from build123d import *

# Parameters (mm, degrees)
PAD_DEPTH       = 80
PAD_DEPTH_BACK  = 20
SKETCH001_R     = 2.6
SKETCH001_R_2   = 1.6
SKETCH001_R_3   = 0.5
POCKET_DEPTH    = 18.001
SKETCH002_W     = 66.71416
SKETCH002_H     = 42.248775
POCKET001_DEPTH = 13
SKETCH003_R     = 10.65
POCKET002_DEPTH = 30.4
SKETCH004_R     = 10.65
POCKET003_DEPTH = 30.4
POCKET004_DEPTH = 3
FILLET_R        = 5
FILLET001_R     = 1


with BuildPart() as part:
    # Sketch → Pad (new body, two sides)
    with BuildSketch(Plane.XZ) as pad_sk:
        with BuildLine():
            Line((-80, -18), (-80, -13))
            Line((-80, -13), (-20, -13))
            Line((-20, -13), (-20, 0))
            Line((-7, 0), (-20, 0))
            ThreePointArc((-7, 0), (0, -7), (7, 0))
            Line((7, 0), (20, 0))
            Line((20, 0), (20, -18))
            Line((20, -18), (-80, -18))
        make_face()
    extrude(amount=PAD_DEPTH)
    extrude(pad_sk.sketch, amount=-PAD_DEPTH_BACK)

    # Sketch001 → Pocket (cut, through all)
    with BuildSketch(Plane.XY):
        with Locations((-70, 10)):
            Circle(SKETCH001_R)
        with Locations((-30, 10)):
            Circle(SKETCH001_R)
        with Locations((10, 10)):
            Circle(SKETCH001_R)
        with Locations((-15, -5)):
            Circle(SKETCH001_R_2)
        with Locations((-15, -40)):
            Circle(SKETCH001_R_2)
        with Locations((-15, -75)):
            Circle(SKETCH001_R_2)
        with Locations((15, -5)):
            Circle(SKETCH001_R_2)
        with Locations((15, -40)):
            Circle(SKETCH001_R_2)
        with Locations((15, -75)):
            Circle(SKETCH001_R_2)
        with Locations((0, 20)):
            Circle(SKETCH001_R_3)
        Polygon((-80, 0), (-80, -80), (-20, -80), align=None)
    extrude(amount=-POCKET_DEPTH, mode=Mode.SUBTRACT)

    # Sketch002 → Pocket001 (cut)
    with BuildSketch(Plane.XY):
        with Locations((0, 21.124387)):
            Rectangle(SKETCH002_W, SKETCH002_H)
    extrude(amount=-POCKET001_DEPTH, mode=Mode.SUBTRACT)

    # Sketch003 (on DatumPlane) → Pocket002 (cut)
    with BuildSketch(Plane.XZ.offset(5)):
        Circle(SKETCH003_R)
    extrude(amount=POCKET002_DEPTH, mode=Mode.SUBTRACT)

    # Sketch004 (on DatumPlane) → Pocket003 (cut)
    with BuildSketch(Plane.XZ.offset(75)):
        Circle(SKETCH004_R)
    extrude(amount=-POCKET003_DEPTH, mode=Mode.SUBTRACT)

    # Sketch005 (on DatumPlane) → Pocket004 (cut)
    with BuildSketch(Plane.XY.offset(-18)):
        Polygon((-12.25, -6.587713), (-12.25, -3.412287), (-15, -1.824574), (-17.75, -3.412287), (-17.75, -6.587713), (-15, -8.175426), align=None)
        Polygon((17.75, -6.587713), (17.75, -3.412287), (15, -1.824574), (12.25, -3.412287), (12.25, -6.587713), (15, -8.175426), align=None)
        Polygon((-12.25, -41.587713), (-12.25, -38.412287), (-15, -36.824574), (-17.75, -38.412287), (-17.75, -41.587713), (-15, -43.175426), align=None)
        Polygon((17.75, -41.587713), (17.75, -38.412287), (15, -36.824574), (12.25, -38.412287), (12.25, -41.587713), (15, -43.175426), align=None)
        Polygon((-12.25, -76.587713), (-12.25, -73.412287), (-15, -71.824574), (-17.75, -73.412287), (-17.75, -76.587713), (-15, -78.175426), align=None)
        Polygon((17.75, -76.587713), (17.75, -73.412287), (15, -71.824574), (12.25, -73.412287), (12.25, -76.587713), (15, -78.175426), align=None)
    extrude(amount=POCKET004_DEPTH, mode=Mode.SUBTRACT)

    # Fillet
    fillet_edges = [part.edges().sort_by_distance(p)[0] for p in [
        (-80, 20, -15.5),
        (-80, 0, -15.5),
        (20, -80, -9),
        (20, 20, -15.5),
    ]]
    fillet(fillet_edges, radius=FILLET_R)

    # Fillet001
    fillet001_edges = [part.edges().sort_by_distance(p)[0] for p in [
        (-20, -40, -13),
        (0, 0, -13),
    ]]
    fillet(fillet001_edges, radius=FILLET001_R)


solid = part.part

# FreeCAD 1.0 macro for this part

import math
import FreeCAD as App
import Part
import Sketcher
from FreeCAD import Vector
Q = App.Units.Quantity


def edges_at(feature, points):
    """Names of the edges that pass closest to the given points."""
    edges = feature.Shape.Edges
    near = lambda p: min(range(len(edges)), key=lambda i: edges[i].distToShape(Part.Vertex(*p))[0])
    return sorted({f"Edge{near(p) + 1}" for p in points})

doc = App.newDocument("Part")
params = doc.addObject("Spreadsheet::Sheet", "Params")
for row, (alias, value) in enumerate([
    ("sketch1_radius", "7 mm"),
    ("sketch1_width", "100 mm"),
    ("sketch1_width2", "13 mm"),
    ("sketch1_height", "5 mm"),
    ("pad1_length", "80 mm"),
    ("pad1_length2", "20 mm"),
    ("sketch2_diameter", "1 mm"),
    ("sketch2_diameter2", "5.2 mm"),
    ("sketch2_diameter3", "3.2 mm"),
    ("sketch2_width", "60 mm"),
    ("sketch2_height", "80 mm"),
    ("pocket2_length", "13 mm"),
    ("sketch4_diameter", "21.3 mm"),
    ("pocket3_length", "30.4 mm"),
    ("sketch5_diameter", "21.3 mm"),
    ("pocket4_length", "30.4 mm"),
    ("pocket5_length", "3 mm"),
    ("fillet_radius", "5 mm"),
    ("fillet2_radius", "1 mm"),
], start=1):
    params.set(f"A{row}", alias)
    params.set(f"B{row}", "=" + value)
    params.setAlias(f"B{row}", alias)

body = doc.addObject("PartDesign::Body", "Body")

# Sketch on XZ plane
sketch1 = body.newObject("Sketcher::SketchObject", "Sketch")
sketch1.AttachmentSupport = (doc.getObject("XZ_Plane"), [""])
sketch1.MapMode = "FlatFace"
sketch1.addGeometry([
    Part.LineSegment(Vector(-80, -13, 0), Vector(-80, -18, 0)),  # 0
    Part.LineSegment(Vector(-80, -18, 0), Vector(20, -18, 0)),  # 1
    Part.LineSegment(Vector(20, -18, 0), Vector(20, 0, 0)),  # 2
    Part.LineSegment(Vector(20, 0, 0), Vector(7, 0, 0)),  # 3
    Part.ArcOfCircle(Part.Circle(Vector(0, 0, 0), Vector(0, 0, 1), 7), math.radians(180), math.radians(360)),  # 4
    Part.LineSegment(Vector(-7, 0, 0), Vector(-20, 0, 0)),  # 5
    Part.LineSegment(Vector(-20, 0, 0), Vector(-20, -13, 0)),  # 6
    Part.LineSegment(Vector(-20, -13, 0), Vector(-80, -13, 0)),  # 7
], False)
sketch1.addConstraint([
    Sketcher.Constraint("Coincident", 0, 2, 1, 1),
    Sketcher.Constraint("Coincident", 1, 2, 2, 1),
    Sketcher.Constraint("Coincident", 2, 2, 3, 1),
    Sketcher.Constraint("Coincident", 3, 2, 4, 2),
    Sketcher.Constraint("Coincident", 4, 1, 5, 1),
    Sketcher.Constraint("Coincident", 5, 2, 6, 1),
    Sketcher.Constraint("Coincident", 6, 2, 7, 1),
    Sketcher.Constraint("Coincident", 7, 2, 0, 1),
    Sketcher.Constraint("Vertical", 0),
    Sketcher.Constraint("Horizontal", 1),
    Sketcher.Constraint("Vertical", 2),
    Sketcher.Constraint("Horizontal", 3),
    Sketcher.Constraint("Horizontal", 5),
    Sketcher.Constraint("Vertical", 6),
    Sketcher.Constraint("Horizontal", 7),
    Sketcher.Constraint("Coincident", 4, 3, -1, 1),
    Sketcher.Constraint("Symmetric", 2, 2, 5, 2, -1, 1),
    Sketcher.Constraint("PointOnObject", 2, 2, -1),
    Sketcher.Constraint("Equal", 5, 6),
    Sketcher.Constraint("Radius", 4, Q("7 mm")),
    Sketcher.Constraint("DistanceX", 1, 1, 1, 2, Q("100 mm")),
    Sketcher.Constraint("DistanceX", 3, 2, 3, 1, Q("13 mm")),
    Sketcher.Constraint("DistanceY", 0, 2, 0, 1, Q("5 mm")),
])
sketch1.setExpression("Constraints[19]", "Params.sketch1_radius")
sketch1.setExpression("Constraints[20]", "Params.sketch1_width")
sketch1.setExpression("Constraints[21]", "Params.sketch1_width2")
sketch1.setExpression("Constraints[22]", "Params.sketch1_height")
pad1 = body.newObject("PartDesign::Pad", "Pad")
pad1.Profile = sketch1
pad1.Type = "TwoLengths"
pad1.setExpression("Length", "Params.pad1_length")
pad1.setExpression("Length2", "Params.pad1_length2")

# Sketch on XY plane
sketch2 = body.newObject("Sketcher::SketchObject", "Sketch001")
sketch2.AttachmentSupport = (doc.getObject("XY_Plane"), [""])
sketch2.MapMode = "FlatFace"
sketch2.addGeometry([
    Part.Circle(Vector(-70, 10, 0), Vector(0, 0, 1), 2.6),  # 0
    Part.Circle(Vector(-30, 10, 0), Vector(0, 0, 1), 2.6),  # 1
    Part.Circle(Vector(10, 10, 0), Vector(0, 0, 1), 2.6),  # 2
    Part.Circle(Vector(-15, -5, 0), Vector(0, 0, 1), 1.6),  # 3
    Part.Circle(Vector(-15, -40, 0), Vector(0, 0, 1), 1.6),  # 4
    Part.Circle(Vector(-15, -75, 0), Vector(0, 0, 1), 1.6),  # 5
    Part.Circle(Vector(15, -5, 0), Vector(0, 0, 1), 1.6),  # 6
    Part.Circle(Vector(15, -40, 0), Vector(0, 0, 1), 1.6),  # 7
    Part.Circle(Vector(15, -75, 0), Vector(0, 0, 1), 1.6),  # 8
    Part.Circle(Vector(0, 20, 0), Vector(0, 0, 1), 0.5),  # 9
    Part.LineSegment(Vector(-80, 0, 0), Vector(-80, -80, 0)),  # 10
    Part.LineSegment(Vector(-80, -80, 0), Vector(-20, -80, 0)),  # 11
    Part.LineSegment(Vector(-20, -80, 0), Vector(-80, 0, 0)),  # 12
], False)
sketch2.addConstraint([
    Sketcher.Constraint("Coincident", 10, 2, 11, 1),
    Sketcher.Constraint("Coincident", 11, 2, 12, 1),
    Sketcher.Constraint("Coincident", 12, 2, 10, 1),
    Sketcher.Constraint("Vertical", 10),
    Sketcher.Constraint("Horizontal", 11),
    Sketcher.Constraint("Equal", 0, 1),
    Sketcher.Constraint("Equal", 1, 2),
    Sketcher.Constraint("Equal", 3, 4),
    Sketcher.Constraint("Equal", 4, 5),
    Sketcher.Constraint("Equal", 5, 6),
    Sketcher.Constraint("Equal", 6, 7),
    Sketcher.Constraint("Equal", 7, 8),
    Sketcher.Constraint("Symmetric", 3, 3, 6, 3, -2),
    Sketcher.Constraint("Symmetric", 4, 3, 7, 3, -2),
    Sketcher.Constraint("Symmetric", 5, 3, 8, 3, -2),
    Sketcher.Constraint("PointOnObject", 9, 3, -2),
    Sketcher.Constraint("PointOnObject", 12, 2, -1),
    Sketcher.Constraint("Horizontal", 0, 3, 1, 3),
    Sketcher.Constraint("Horizontal", 1, 3, 2, 3),
    Sketcher.Constraint("Vertical", 3, 3, 4, 3),
    Sketcher.Constraint("Vertical", 4, 3, 5, 3),
    Sketcher.Constraint("Diameter", 9, Q("1 mm")),
    Sketcher.Constraint("Diameter", 0, Q("5.2 mm")),
    Sketcher.Constraint("Diameter", 3, Q("3.2 mm")),
    Sketcher.Constraint("DistanceX", 11, 1, 11, 2, Q("60 mm")),
    Sketcher.Constraint("DistanceY", 10, 2, 10, 1, Q("80 mm")),
    Sketcher.Constraint("DistanceX", 0, 3, -1, 1, Q("70 mm")),
    Sketcher.Constraint("DistanceY", -1, 1, 0, 3, Q("10 mm")),
    Sketcher.Constraint("DistanceX", 1, 3, -1, 1, Q("30 mm")),
    Sketcher.Constraint("DistanceX", -1, 1, 2, 3, Q("10 mm")),
    Sketcher.Constraint("DistanceX", 3, 3, -1, 1, Q("15 mm")),
    Sketcher.Constraint("DistanceY", 3, 3, -1, 1, Q("5 mm")),
    Sketcher.Constraint("DistanceY", 4, 3, -1, 1, Q("40 mm")),
    Sketcher.Constraint("DistanceY", 5, 3, -1, 1, Q("75 mm")),
    Sketcher.Constraint("DistanceY", -1, 1, 9, 3, Q("20 mm")),
    Sketcher.Constraint("DistanceX", 10, 2, -1, 1, Q("80 mm")),
])
sketch2.setExpression("Constraints[21]", "Params.sketch2_diameter")
sketch2.setExpression("Constraints[22]", "Params.sketch2_diameter2")
sketch2.setExpression("Constraints[23]", "Params.sketch2_diameter3")
sketch2.setExpression("Constraints[24]", "Params.sketch2_width")
sketch2.setExpression("Constraints[25]", "Params.sketch2_height")
pocket1 = body.newObject("PartDesign::Pocket", "Pocket")
pocket1.Profile = sketch2
pocket1.Type = "ThroughAll"

# Sketch on XY plane
sketch3 = body.newObject("Sketcher::SketchObject", "Sketch002")
sketch3.AttachmentSupport = (doc.getObject("XY_Plane"), [""])
sketch3.MapMode = "FlatFace"
sketch3.addGeometry([
    Part.LineSegment(Vector(-33, 42, 0), Vector(-33, 0, 0)),
    Part.LineSegment(Vector(-33, 0, 0), Vector(33, 0, 0)),
    Part.LineSegment(Vector(33, 0, 0), Vector(33, 42, 0)),
    Part.LineSegment(Vector(33, 42, 0), Vector(-33, 42, 0)),
], False)
sketch3.addConstraint([
    Sketcher.Constraint("Coincident", 0, 2, 1, 1),
    Sketcher.Constraint("Coincident", 1, 2, 2, 1),
    Sketcher.Constraint("Coincident", 2, 2, 3, 1),
    Sketcher.Constraint("Coincident", 3, 2, 0, 1),
    Sketcher.Constraint("Vertical", 0),
    Sketcher.Constraint("Horizontal", 1),
    Sketcher.Constraint("Vertical", 2),
    Sketcher.Constraint("Horizontal", 3),
    Sketcher.Constraint("Symmetric", 0, 2, 1, 2, -1, 1),
    Sketcher.Constraint("DistanceX", 1, 1, 1, 2, Q("66.71416 mm")),
    Sketcher.Constraint("DistanceY", 0, 2, 0, 1, Q("42.248775 mm")),
])
pocket2 = body.newObject("PartDesign::Pocket", "Pocket001")
pocket2.Profile = sketch3
pocket2.setExpression("Length", "Params.pocket2_length")

# Sketch on XZ plane
sketch4 = body.newObject("Sketcher::SketchObject", "Sketch003")
sketch4.AttachmentSupport = (doc.getObject("XZ_Plane"), [""])
sketch4.MapMode = "FlatFace"
sketch4.AttachmentOffset = App.Placement(Vector(0, 0, 5), App.Rotation())
sketch4.addGeometry(Part.Circle(Vector(0, 0, 0), Vector(0, 0, 1), 11), False)
sketch4.addConstraint([
    Sketcher.Constraint("Coincident", 0, 3, -1, 1),
    Sketcher.Constraint("Diameter", 0, Q("21.3 mm")),
])
sketch4.setExpression("Constraints[1]", "Params.sketch4_diameter")
pocket3 = body.newObject("PartDesign::Pocket", "Pocket002")
pocket3.Profile = sketch4
pocket3.setExpression("Length", "Params.pocket3_length")
pocket3.Reversed = True

# Sketch on XZ plane
sketch5 = body.newObject("Sketcher::SketchObject", "Sketch004")
sketch5.AttachmentSupport = (doc.getObject("XZ_Plane"), [""])
sketch5.MapMode = "FlatFace"
sketch5.AttachmentOffset = App.Placement(Vector(0, 0, 75), App.Rotation())
sketch5.addGeometry(Part.Circle(Vector(0, 0, 0), Vector(0, 0, 1), 11), False)
sketch5.addConstraint([
    Sketcher.Constraint("Coincident", 0, 3, -1, 1),
    Sketcher.Constraint("Diameter", 0, Q("21.3 mm")),
])
sketch5.setExpression("Constraints[1]", "Params.sketch5_diameter")
pocket4 = body.newObject("PartDesign::Pocket", "Pocket003")
pocket4.Profile = sketch5
pocket4.setExpression("Length", "Params.pocket4_length")

# Sketch on XY plane
sketch6 = body.newObject("Sketcher::SketchObject", "Sketch005")
sketch6.AttachmentSupport = (doc.getObject("XY_Plane"), [""])
sketch6.MapMode = "FlatFace"
sketch6.AttachmentOffset = App.Placement(Vector(0, 0, -18), App.Rotation())
sketch6.addGeometry([
    Part.LineSegment(Vector(-12.2, -6.6, 0), Vector(-12.2, -3.4, 0)),  # 0
    Part.LineSegment(Vector(-12.2, -3.4, 0), Vector(-15, -1.8, 0)),  # 1
    Part.LineSegment(Vector(-15, -1.8, 0), Vector(-17.8, -3.4, 0)),  # 2
    Part.LineSegment(Vector(-17.8, -3.4, 0), Vector(-17.8, -6.6, 0)),  # 3
    Part.LineSegment(Vector(-17.8, -6.6, 0), Vector(-15, -8.2, 0)),  # 4
    Part.LineSegment(Vector(-15, -8.2, 0), Vector(-12.2, -6.6, 0)),  # 5
    Part.LineSegment(Vector(17.8, -6.6, 0), Vector(17.8, -3.4, 0)),  # 6
    Part.LineSegment(Vector(17.8, -3.4, 0), Vector(15, -1.8, 0)),  # 7
    Part.LineSegment(Vector(15, -1.8, 0), Vector(12.2, -3.4, 0)),  # 8
    Part.LineSegment(Vector(12.2, -3.4, 0), Vector(12.2, -6.6, 0)),  # 9
    Part.LineSegment(Vector(12.2, -6.6, 0), Vector(15, -8.2, 0)),  # 10
    Part.LineSegment(Vector(15, -8.2, 0), Vector(17.8, -6.6, 0)),  # 11
    Part.LineSegment(Vector(-12.2, -41.6, 0), Vector(-12.2, -38.4, 0)),  # 12
    Part.LineSegment(Vector(-12.2, -38.4, 0), Vector(-15, -36.8, 0)),  # 13
    Part.LineSegment(Vector(-15, -36.8, 0), Vector(-17.8, -38.4, 0)),  # 14
    Part.LineSegment(Vector(-17.8, -38.4, 0), Vector(-17.8, -41.6, 0)),  # 15
    Part.LineSegment(Vector(-17.8, -41.6, 0), Vector(-15, -43.2, 0)),  # 16
    Part.LineSegment(Vector(-15, -43.2, 0), Vector(-12.2, -41.6, 0)),  # 17
    Part.LineSegment(Vector(17.8, -41.6, 0), Vector(17.8, -38.4, 0)),  # 18
    Part.LineSegment(Vector(17.8, -38.4, 0), Vector(15, -36.8, 0)),  # 19
    Part.LineSegment(Vector(15, -36.8, 0), Vector(12.2, -38.4, 0)),  # 20
    Part.LineSegment(Vector(12.2, -38.4, 0), Vector(12.2, -41.6, 0)),  # 21
    Part.LineSegment(Vector(12.2, -41.6, 0), Vector(15, -43.2, 0)),  # 22
    Part.LineSegment(Vector(15, -43.2, 0), Vector(17.8, -41.6, 0)),  # 23
    Part.LineSegment(Vector(-12.2, -76.6, 0), Vector(-12.2, -73.4, 0)),  # 24
    Part.LineSegment(Vector(-12.2, -73.4, 0), Vector(-15, -71.8, 0)),  # 25
    Part.LineSegment(Vector(-15, -71.8, 0), Vector(-17.8, -73.4, 0)),  # 26
    Part.LineSegment(Vector(-17.8, -73.4, 0), Vector(-17.8, -76.6, 0)),  # 27
    Part.LineSegment(Vector(-17.8, -76.6, 0), Vector(-15, -78.2, 0)),  # 28
    Part.LineSegment(Vector(-15, -78.2, 0), Vector(-12.2, -76.6, 0)),  # 29
    Part.LineSegment(Vector(17.8, -76.6, 0), Vector(17.8, -73.4, 0)),  # 30
    Part.LineSegment(Vector(17.8, -73.4, 0), Vector(15, -71.8, 0)),  # 31
    Part.LineSegment(Vector(15, -71.8, 0), Vector(12.2, -73.4, 0)),  # 32
    Part.LineSegment(Vector(12.2, -73.4, 0), Vector(12.2, -76.6, 0)),  # 33
    Part.LineSegment(Vector(12.2, -76.6, 0), Vector(15, -78.2, 0)),  # 34
    Part.LineSegment(Vector(15, -78.2, 0), Vector(17.8, -76.6, 0)),  # 35
], False)
sketch6.addConstraint([
    Sketcher.Constraint("Coincident", 0, 2, 1, 1),
    Sketcher.Constraint("Coincident", 1, 2, 2, 1),
    Sketcher.Constraint("Coincident", 2, 2, 3, 1),
    Sketcher.Constraint("Coincident", 3, 2, 4, 1),
    Sketcher.Constraint("Coincident", 4, 2, 5, 1),
    Sketcher.Constraint("Coincident", 5, 2, 0, 1),
    Sketcher.Constraint("Coincident", 6, 2, 7, 1),
    Sketcher.Constraint("Coincident", 7, 2, 8, 1),
    Sketcher.Constraint("Coincident", 8, 2, 9, 1),
    Sketcher.Constraint("Coincident", 9, 2, 10, 1),
    Sketcher.Constraint("Coincident", 10, 2, 11, 1),
    Sketcher.Constraint("Coincident", 11, 2, 6, 1),
    Sketcher.Constraint("Coincident", 12, 2, 13, 1),
    Sketcher.Constraint("Coincident", 13, 2, 14, 1),
    Sketcher.Constraint("Coincident", 14, 2, 15, 1),
    Sketcher.Constraint("Coincident", 15, 2, 16, 1),
    Sketcher.Constraint("Coincident", 16, 2, 17, 1),
    Sketcher.Constraint("Coincident", 17, 2, 12, 1),
    Sketcher.Constraint("Coincident", 18, 2, 19, 1),
    Sketcher.Constraint("Coincident", 19, 2, 20, 1),
    Sketcher.Constraint("Coincident", 20, 2, 21, 1),
    Sketcher.Constraint("Coincident", 21, 2, 22, 1),
    Sketcher.Constraint("Coincident", 22, 2, 23, 1),
    Sketcher.Constraint("Coincident", 23, 2, 18, 1),
    Sketcher.Constraint("Coincident", 24, 2, 25, 1),
    Sketcher.Constraint("Coincident", 25, 2, 26, 1),
    Sketcher.Constraint("Coincident", 26, 2, 27, 1),
    Sketcher.Constraint("Coincident", 27, 2, 28, 1),
    Sketcher.Constraint("Coincident", 28, 2, 29, 1),
    Sketcher.Constraint("Coincident", 29, 2, 24, 1),
    Sketcher.Constraint("Coincident", 30, 2, 31, 1),
    Sketcher.Constraint("Coincident", 31, 2, 32, 1),
    Sketcher.Constraint("Coincident", 32, 2, 33, 1),
    Sketcher.Constraint("Coincident", 33, 2, 34, 1),
    Sketcher.Constraint("Coincident", 34, 2, 35, 1),
    Sketcher.Constraint("Coincident", 35, 2, 30, 1),
    Sketcher.Constraint("Vertical", 0),
    Sketcher.Constraint("Vertical", 3),
    Sketcher.Constraint("Vertical", 6),
    Sketcher.Constraint("Vertical", 9),
    Sketcher.Constraint("Vertical", 12),
    Sketcher.Constraint("Vertical", 15),
    Sketcher.Constraint("Vertical", 18),
    Sketcher.Constraint("Vertical", 21),
    Sketcher.Constraint("Vertical", 24),
    Sketcher.Constraint("Vertical", 27),
    Sketcher.Constraint("Vertical", 30),
    Sketcher.Constraint("Vertical", 33),
    Sketcher.Constraint("Symmetric", 2, 2, 6, 2, -2),
    Sketcher.Constraint("Symmetric", 1, 2, 7, 2, -2),
    Sketcher.Constraint("Symmetric", 0, 2, 8, 2, -2),
    Sketcher.Constraint("Symmetric", 4, 2, 10, 2, -2),
    Sketcher.Constraint("Symmetric", 14, 2, 18, 2, -2),
    Sketcher.Constraint("Symmetric", 13, 2, 19, 2, -2),
    Sketcher.Constraint("Symmetric", 12, 2, 20, 2, -2),
    Sketcher.Constraint("Symmetric", 16, 2, 22, 2, -2),
    Sketcher.Constraint("Symmetric", 26, 2, 30, 2, -2),
    Sketcher.Constraint("Symmetric", 25, 2, 31, 2, -2),
    Sketcher.Constraint("Symmetric", 24, 2, 32, 2, -2),
    Sketcher.Constraint("Symmetric", 28, 2, 34, 2, -2),
    Sketcher.Constraint("Parallel", 1, 4),
    Sketcher.Constraint("Parallel", 2, 5),
    Sketcher.Constraint("Parallel", 4, 7),
    Sketcher.Constraint("Parallel", 7, 10),
    Sketcher.Constraint("Parallel", 8, 11),
    Sketcher.Constraint("Parallel", 10, 13),
    Sketcher.Constraint("Parallel", 11, 14),
    Sketcher.Constraint("Parallel", 13, 16),
    Sketcher.Constraint("Parallel", 14, 17),
    Sketcher.Constraint("Parallel", 19, 22),
    Sketcher.Constraint("Parallel", 20, 23),
    Sketcher.Constraint("Parallel", 22, 25),
    Sketcher.Constraint("Parallel", 23, 26),
    Sketcher.Constraint("Parallel", 25, 28),
    Sketcher.Constraint("Parallel", 26, 29),
    Sketcher.Constraint("Parallel", 31, 34),
    Sketcher.Constraint("Parallel", 32, 35),
    Sketcher.Constraint("Horizontal", 0, 2, 2, 2),
    Sketcher.Constraint("Horizontal", 3, 2, 5, 2),
    Sketcher.Constraint("Horizontal", 12, 2, 14, 2),
    Sketcher.Constraint("Horizontal", 15, 2, 17, 2),
    Sketcher.Constraint("Horizontal", 24, 2, 26, 2),
    Sketcher.Constraint("Horizontal", 27, 2, 29, 2),
    Sketcher.Constraint("Vertical", 5, 2, 12, 2),
    Sketcher.Constraint("Vertical", 4, 2, 13, 2),
    Sketcher.Constraint("Vertical", 17, 2, 24, 2),
    Sketcher.Constraint("Vertical", 16, 2, 25, 2),
    Sketcher.Constraint("Equal", 9, 12),
    Sketcher.Constraint("Equal", 21, 24),
    Sketcher.Constraint("Angle", 1, Q("150.000004 deg")),
    Sketcher.Constraint("DistanceX", 1, 2, -1, 1, Q("15 mm")),
    Sketcher.Constraint("DistanceY", 12, 2, 0, 2, Q("35 mm")),
    Sketcher.Constraint("DistanceY", 24, 2, 12, 2, Q("35 mm")),
    Sketcher.Constraint("DistanceX", 2, 2, 0, 2, Q("5.5 mm")),
    Sketcher.Constraint("DistanceY", 0, 1, 0, 2, Q("3.175426 mm")),
    Sketcher.Constraint("DistanceY", 0, 2, -1, 1, Q("3.412287 mm")),
])
pocket5 = body.newObject("PartDesign::Pocket", "Pocket004")
pocket5.Profile = sketch6
pocket5.setExpression("Length", "Params.pocket5_length")
pocket5.Reversed = True
doc.recompute()

fillet = body.newObject("PartDesign::Fillet", "Fillet")
fillet.Base = (pocket5, edges_at(pocket5, [
    (-80, 20, -15.5),
    (-80, 0, -15.5),
    (20, -80, -9),
    (20, 20, -15.5),
]))
fillet.setExpression("Radius", "Params.fillet_radius")
doc.recompute()

fillet2 = body.newObject("PartDesign::Fillet", "Fillet001")
fillet2.Base = (fillet, edges_at(fillet, [(-20, -40, -13), (0, 0, -13)]))
fillet2.setExpression("Radius", "Params.fillet2_radius")

doc.recompute()
